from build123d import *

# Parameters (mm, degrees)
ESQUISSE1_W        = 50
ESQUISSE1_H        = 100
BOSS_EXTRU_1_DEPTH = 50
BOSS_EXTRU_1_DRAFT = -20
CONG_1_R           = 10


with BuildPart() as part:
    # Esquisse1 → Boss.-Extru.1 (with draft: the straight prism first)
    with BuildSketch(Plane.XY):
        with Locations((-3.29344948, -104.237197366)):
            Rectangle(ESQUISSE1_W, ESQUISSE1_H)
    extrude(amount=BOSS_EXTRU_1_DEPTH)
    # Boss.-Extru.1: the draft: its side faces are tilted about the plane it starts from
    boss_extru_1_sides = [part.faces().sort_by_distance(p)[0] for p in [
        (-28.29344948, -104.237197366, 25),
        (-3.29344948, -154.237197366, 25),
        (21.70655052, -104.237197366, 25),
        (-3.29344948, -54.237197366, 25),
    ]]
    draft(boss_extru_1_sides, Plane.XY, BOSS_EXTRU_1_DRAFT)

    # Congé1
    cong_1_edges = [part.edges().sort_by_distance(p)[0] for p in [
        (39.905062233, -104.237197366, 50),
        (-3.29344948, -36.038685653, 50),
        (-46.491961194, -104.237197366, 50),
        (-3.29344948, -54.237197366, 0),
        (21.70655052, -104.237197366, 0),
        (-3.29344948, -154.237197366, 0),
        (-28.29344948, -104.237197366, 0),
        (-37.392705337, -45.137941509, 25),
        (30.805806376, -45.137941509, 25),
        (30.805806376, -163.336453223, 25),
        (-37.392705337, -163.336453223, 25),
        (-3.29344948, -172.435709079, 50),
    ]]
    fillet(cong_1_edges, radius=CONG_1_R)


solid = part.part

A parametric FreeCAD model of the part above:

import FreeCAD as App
import Part
import Sketcher

V = App.Vector
Q = App.Units.Quantity


def faces_at(feature, points):
    """Names of the faces that lie closest to the given points."""
    faces = feature.Shape.Faces
    near = lambda p: min(range(len(faces)), key=lambda i: faces[i].distToShape(Part.Vertex(*p))[0])
    return sorted({f"Face{near(p) + 1}" for p in points})

doc = App.newDocument("Part")
body = doc.addObject("PartDesign::Body", "Body")

# Sketch on XY plane
sketch1 = body.newObject("Sketcher::SketchObject", "Sketch")
sketch1.AttachmentSupport = (doc.getObject("XY_Plane"), [""])
sketch1.MapMode = "FlatFace"
sketch1.addGeometry(Part.LineSegment(V(-28, -54, 0), V(-28, -154, 0)), False)
sketch1.addGeometry(Part.LineSegment(V(-28, -154, 0), V(22, -154, 0)), False)
sketch1.addGeometry(Part.LineSegment(V(22, -154, 0), V(22, -54, 0)), False)
sketch1.addGeometry(Part.LineSegment(V(22, -54, 0), V(-28, -54, 0)), False)
sketch1.addConstraint(Sketcher.Constraint("Coincident", 0, 2, 1, 1))
sketch1.addConstraint(Sketcher.Constraint("Coincident", 1, 2, 2, 1))
sketch1.addConstraint(Sketcher.Constraint("Coincident", 2, 2, 3, 1))
sketch1.addConstraint(Sketcher.Constraint("Coincident", 3, 2, 0, 1))
sketch1.addConstraint(Sketcher.Constraint("Vertical", 0))
sketch1.addConstraint(Sketcher.Constraint("Horizontal", 1))
sketch1.addConstraint(Sketcher.Constraint("Vertical", 2))
sketch1.addConstraint(Sketcher.Constraint("Horizontal", 3))
sketch1.addConstraint(Sketcher.Constraint("DistanceX", 1, 1, 1, 2, Q("50 mm")))
sketch1.addConstraint(Sketcher.Constraint("DistanceY", 0, 2, 0, 1, Q("100 mm")))
sketch1.addConstraint(Sketcher.Constraint("DistanceX", 0, 2, -1, 1, Q("28.293449 mm")))
sketch1.addConstraint(Sketcher.Constraint("DistanceY", 0, 2, -1, 1, Q("154.237197 mm")))
pad1 = body.newObject("PartDesign::Pad", "Pad")
pad1.Profile = sketch1
pad1.Length = 50
doc.recompute()

draft = body.newObject("PartDesign::Draft", "Draft")
draft.Base = (pad1, faces_at(pad1, [
    (-28.293, -104.237, 25),
    (-3.293, -154.237, 25),
    (21.707, -104.237, 25),
    (-3.293, -54.237, 25),
]))
draft.NeutralPlane = (doc.getObject("XY_Plane"), [""])
draft.Angle = 20
draft.Reversed = True
doc.recompute()

fillet = body.newObject("PartDesign::Fillet", "Fillet")
fillet.Base = (draft, ["Edge1"])
fillet.UseAllEdges = True
fillet.Radius = 10

doc.recompute()
